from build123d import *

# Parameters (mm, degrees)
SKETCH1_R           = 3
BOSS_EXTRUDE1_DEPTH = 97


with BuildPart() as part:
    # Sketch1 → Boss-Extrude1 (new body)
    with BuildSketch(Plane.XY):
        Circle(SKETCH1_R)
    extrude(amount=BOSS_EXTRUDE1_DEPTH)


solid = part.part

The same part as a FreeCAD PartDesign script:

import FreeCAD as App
import Part
import Sketcher
from FreeCAD import Vector

doc = App.newDocument("Part")
params = doc.addObject("Spreadsheet::Sheet", "Params")
for row, (alias, value) in enumerate([
    ("sketch1_diameter", "6 mm"),
    ("pad1_length", "97 mm"),
], start=1):
    params.set(f"A{row}", alias)
    params.set(f"B{row}", "=" + value)
    params.setAlias(f"B{row}", alias)

body = doc.addObject("PartDesign::Body", "Body")

sketch1 = body.newObject("Sketcher::SketchObject", "Sketch")
sketch1.AttachmentSupport = (doc.getObject("XY_Plane"), [""])
sketch1.MapMode = "FlatFace"
sketch1.addGeometry(Part.Circle(Vector(0, 0, 0), Vector(0, 0, 1), 3), False)
sketch1.addConstraint(Sketcher.Constraint("Coincident", 0, 3, -1, 1))
sketch1.addConstraint(Sketcher.Constraint("Diameter", 0, 6.0))
sketch1.setExpression("Constraints[1]", "Params.sketch1_diameter")
pad1 = body.newObject("PartDesign::Pad", "Pad")
pad1.Profile = sketch1
pad1.setExpression("Length", "Params.pad1_length")

doc.recompute()
